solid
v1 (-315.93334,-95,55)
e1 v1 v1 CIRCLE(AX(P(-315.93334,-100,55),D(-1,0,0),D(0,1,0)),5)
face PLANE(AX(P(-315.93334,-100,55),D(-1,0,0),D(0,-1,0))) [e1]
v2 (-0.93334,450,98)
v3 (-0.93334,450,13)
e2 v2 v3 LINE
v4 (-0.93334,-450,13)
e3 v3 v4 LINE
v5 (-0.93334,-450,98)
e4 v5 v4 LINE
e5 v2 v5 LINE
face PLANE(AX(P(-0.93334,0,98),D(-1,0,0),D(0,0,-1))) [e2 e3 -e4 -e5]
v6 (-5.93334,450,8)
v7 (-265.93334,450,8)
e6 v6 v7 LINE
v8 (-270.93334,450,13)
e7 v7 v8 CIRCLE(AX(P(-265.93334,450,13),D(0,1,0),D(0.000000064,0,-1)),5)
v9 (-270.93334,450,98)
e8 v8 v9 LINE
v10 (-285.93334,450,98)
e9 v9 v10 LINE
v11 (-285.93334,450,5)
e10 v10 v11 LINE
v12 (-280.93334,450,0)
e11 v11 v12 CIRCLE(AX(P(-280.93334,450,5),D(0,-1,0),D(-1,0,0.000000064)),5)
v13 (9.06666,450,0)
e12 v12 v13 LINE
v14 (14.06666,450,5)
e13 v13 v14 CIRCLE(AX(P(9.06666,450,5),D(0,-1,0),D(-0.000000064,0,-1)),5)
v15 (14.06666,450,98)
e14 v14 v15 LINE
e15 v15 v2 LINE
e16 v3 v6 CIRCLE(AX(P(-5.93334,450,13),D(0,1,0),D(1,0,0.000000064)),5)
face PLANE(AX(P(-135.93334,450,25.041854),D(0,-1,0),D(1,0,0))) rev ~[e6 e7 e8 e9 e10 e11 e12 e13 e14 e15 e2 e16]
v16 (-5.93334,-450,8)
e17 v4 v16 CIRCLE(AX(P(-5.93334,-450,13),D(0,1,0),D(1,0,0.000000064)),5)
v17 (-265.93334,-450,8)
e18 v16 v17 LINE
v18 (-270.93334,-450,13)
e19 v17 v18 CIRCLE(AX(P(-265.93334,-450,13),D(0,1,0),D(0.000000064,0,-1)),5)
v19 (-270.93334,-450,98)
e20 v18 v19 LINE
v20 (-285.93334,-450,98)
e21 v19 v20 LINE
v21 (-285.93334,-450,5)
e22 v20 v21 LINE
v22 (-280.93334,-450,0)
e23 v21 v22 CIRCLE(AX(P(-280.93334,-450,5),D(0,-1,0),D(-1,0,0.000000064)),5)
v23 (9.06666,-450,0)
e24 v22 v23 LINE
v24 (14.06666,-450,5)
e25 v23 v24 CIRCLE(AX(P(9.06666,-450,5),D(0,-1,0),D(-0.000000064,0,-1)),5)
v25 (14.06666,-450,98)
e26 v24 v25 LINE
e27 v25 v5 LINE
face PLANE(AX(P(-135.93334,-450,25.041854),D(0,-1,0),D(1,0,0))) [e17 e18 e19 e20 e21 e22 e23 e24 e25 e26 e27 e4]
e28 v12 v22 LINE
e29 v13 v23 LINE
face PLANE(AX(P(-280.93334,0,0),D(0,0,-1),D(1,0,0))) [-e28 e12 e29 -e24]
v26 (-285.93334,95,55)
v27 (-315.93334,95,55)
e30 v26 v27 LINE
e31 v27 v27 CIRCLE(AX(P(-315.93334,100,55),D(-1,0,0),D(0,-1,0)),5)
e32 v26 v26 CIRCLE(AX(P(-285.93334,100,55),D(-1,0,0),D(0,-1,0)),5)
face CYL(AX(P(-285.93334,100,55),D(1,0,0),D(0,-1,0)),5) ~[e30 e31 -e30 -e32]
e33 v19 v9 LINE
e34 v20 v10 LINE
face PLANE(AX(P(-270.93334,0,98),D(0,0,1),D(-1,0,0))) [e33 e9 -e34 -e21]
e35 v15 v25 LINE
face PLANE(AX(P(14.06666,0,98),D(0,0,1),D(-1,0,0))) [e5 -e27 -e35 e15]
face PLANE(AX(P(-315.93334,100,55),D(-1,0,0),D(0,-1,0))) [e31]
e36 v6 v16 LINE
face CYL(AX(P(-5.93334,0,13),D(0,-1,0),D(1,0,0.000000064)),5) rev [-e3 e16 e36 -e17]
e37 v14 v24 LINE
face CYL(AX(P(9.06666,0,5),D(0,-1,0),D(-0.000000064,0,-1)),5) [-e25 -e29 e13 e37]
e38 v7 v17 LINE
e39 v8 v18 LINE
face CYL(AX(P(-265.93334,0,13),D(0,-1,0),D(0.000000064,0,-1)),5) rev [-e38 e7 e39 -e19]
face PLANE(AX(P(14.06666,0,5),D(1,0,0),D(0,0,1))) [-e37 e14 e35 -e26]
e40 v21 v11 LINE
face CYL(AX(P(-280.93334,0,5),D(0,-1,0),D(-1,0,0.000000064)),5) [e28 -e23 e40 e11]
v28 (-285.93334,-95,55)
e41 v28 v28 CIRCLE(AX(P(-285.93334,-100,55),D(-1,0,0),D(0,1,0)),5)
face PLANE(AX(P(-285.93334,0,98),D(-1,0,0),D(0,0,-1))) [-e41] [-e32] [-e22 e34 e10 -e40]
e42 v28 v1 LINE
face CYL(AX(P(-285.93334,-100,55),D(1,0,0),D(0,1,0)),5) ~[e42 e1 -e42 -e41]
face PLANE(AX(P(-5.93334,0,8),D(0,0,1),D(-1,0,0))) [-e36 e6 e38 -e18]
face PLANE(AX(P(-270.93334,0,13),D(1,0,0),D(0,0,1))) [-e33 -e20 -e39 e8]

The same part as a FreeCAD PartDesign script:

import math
import FreeCAD as App
import Part
import Sketcher
Q = App.Units.Quantity

doc = App.newDocument("Part")
body = doc.addObject("PartDesign::Body", "Body")

sketch1 = body.newObject("Sketcher::SketchObject", "Sketch")
sketch1.AttachmentSupport = (doc.getObject("XZ_Plane"), [""])
sketch1.MapMode = "FlatFace"
sketch1.addGeometry([
    Part.ArcOfCircle(Part.Circle(App.Vector(-280.9, 5, 0), App.Vector(0, 0, 1), 5), math.radians(180), math.radians(270)),
    Part.LineSegment(App.Vector(-280.9, 0, 0), App.Vector(9.1, 0, 0)),
    Part.ArcOfCircle(Part.Circle(App.Vector(9.1, 5, 0), App.Vector(0, 0, 1), 5), math.radians(-90), math.radians(0)),
    Part.LineSegment(App.Vector(14.1, 5, 0), App.Vector(14.1, 98, 0)),
    Part.LineSegment(App.Vector(14.1, 98, 0), App.Vector(-0.9, 98, 0)),
    Part.LineSegment(App.Vector(-0.9, 98, 0), App.Vector(-0.9, 13, 0)),
    Part.ArcOfCircle(Part.Circle(App.Vector(-5.9, 13, 0), App.Vector(0, 0, 1), 5), math.radians(-90), math.radians(0)),
    Part.LineSegment(App.Vector(-5.9, 8, 0), App.Vector(-265.9, 8, 0)),
    Part.ArcOfCircle(Part.Circle(App.Vector(-265.9, 13, 0), App.Vector(0, 0, 1), 5), math.radians(180), math.radians(270)),
    Part.LineSegment(App.Vector(-270.9, 13, 0), App.Vector(-270.9, 98, 0)),
    Part.LineSegment(App.Vector(-270.9, 98, 0), App.Vector(-285.9, 98, 0)),
    Part.LineSegment(App.Vector(-285.9, 98, 0), App.Vector(-285.9, 5, 0)),
], False)
sketch1.addConstraint([
    Sketcher.Constraint("Tangent", 0, 2, 1, 1),
    Sketcher.Constraint("Tangent", 1, 2, 2, 1),
    Sketcher.Constraint("Tangent", 2, 2, 3, 1),
    Sketcher.Constraint("Coincident", 3, 2, 4, 1),
    Sketcher.Constraint("Coincident", 4, 2, 5, 1),
    Sketcher.Constraint("Tangent", 5, 2, 6, 2),
    Sketcher.Constraint("Tangent", 6, 1, 7, 1),
    Sketcher.Constraint("Tangent", 7, 2, 8, 2),
    Sketcher.Constraint("Tangent", 8, 1, 9, 1),
    Sketcher.Constraint("Coincident", 9, 2, 10, 1),
    Sketcher.Constraint("Coincident", 10, 2, 11, 1),
    Sketcher.Constraint("Tangent", 11, 2, 0, 1),
    Sketcher.Constraint("Horizontal", 1),
    Sketcher.Constraint("Vertical", 3),
    Sketcher.Constraint("Horizontal", 4),
    Sketcher.Constraint("Vertical", 5),
    Sketcher.Constraint("Horizontal", 7),
    Sketcher.Constraint("Vertical", 9),
    Sketcher.Constraint("Horizontal", 10),
    Sketcher.Constraint("Vertical", 11),
    Sketcher.Constraint("Equal", 0, 2),
    Sketcher.Constraint("Equal", 2, 6),
    Sketcher.Constraint("Equal", 6, 8),
    Sketcher.Constraint("PointOnObject", 0, 2, -1),
    Sketcher.Constraint("Horizontal", 4, 2, 9, 2),
    Sketcher.Constraint("Equal", 4, 10),
    Sketcher.Constraint("Radius", 0, Q("5 mm")),
    Sketcher.Constraint("DistanceX", 1, 1, 1, 2, Q("290 mm")),
    Sketcher.Constraint("DistanceX", 4, 2, 4, 1, Q("15 mm")),
    Sketcher.Constraint("DistanceY", 3, 1, 3, 2, Q("93 mm")),
    Sketcher.Constraint("DistanceY", 5, 2, 5, 1, Q("85 mm")),
    Sketcher.Constraint("DistanceX", 0, 3, -1, 1, Q("280.93334 mm")),
])
pad1 = body.newObject("PartDesign::Pad", "Pad")
pad1.Profile = sketch1
pad1.Length = 900
pad1.Midplane = True

sketch2 = body.newObject("Sketcher::SketchObject", "Sketch001")
sketch2.AttachmentSupport = (doc.getObject("YZ_Plane"), [""])
sketch2.MapMode = "FlatFace"
sketch2.AttachmentOffset = App.Placement(App.Vector(0, 0, -285.93334), App.Rotation())
sketch2.addGeometry([
    Part.Circle(App.Vector(100, 55, 0), App.Vector(0, 0, 1), 5),
    Part.Circle(App.Vector(-100, 55, 0), App.Vector(0, 0, 1), 5),
], False)
sketch2.addConstraint([
    Sketcher.Constraint("Equal", 0, 1),
    Sketcher.Constraint("Symmetric", 0, 3, 1, 3, -2),
    Sketcher.Constraint("Diameter", 0, Q("10 mm")),
    Sketcher.Constraint("DistanceX", -1, 1, 0, 3, Q("100 mm")),
    Sketcher.Constraint("DistanceY", -1, 1, 0, 3, Q("55 mm")),
])
pad2 = body.newObject("PartDesign::Pad", "Pad001")
pad2.Profile = sketch2
pad2.Length = 30
pad2.Reversed = True

doc.recompute()
